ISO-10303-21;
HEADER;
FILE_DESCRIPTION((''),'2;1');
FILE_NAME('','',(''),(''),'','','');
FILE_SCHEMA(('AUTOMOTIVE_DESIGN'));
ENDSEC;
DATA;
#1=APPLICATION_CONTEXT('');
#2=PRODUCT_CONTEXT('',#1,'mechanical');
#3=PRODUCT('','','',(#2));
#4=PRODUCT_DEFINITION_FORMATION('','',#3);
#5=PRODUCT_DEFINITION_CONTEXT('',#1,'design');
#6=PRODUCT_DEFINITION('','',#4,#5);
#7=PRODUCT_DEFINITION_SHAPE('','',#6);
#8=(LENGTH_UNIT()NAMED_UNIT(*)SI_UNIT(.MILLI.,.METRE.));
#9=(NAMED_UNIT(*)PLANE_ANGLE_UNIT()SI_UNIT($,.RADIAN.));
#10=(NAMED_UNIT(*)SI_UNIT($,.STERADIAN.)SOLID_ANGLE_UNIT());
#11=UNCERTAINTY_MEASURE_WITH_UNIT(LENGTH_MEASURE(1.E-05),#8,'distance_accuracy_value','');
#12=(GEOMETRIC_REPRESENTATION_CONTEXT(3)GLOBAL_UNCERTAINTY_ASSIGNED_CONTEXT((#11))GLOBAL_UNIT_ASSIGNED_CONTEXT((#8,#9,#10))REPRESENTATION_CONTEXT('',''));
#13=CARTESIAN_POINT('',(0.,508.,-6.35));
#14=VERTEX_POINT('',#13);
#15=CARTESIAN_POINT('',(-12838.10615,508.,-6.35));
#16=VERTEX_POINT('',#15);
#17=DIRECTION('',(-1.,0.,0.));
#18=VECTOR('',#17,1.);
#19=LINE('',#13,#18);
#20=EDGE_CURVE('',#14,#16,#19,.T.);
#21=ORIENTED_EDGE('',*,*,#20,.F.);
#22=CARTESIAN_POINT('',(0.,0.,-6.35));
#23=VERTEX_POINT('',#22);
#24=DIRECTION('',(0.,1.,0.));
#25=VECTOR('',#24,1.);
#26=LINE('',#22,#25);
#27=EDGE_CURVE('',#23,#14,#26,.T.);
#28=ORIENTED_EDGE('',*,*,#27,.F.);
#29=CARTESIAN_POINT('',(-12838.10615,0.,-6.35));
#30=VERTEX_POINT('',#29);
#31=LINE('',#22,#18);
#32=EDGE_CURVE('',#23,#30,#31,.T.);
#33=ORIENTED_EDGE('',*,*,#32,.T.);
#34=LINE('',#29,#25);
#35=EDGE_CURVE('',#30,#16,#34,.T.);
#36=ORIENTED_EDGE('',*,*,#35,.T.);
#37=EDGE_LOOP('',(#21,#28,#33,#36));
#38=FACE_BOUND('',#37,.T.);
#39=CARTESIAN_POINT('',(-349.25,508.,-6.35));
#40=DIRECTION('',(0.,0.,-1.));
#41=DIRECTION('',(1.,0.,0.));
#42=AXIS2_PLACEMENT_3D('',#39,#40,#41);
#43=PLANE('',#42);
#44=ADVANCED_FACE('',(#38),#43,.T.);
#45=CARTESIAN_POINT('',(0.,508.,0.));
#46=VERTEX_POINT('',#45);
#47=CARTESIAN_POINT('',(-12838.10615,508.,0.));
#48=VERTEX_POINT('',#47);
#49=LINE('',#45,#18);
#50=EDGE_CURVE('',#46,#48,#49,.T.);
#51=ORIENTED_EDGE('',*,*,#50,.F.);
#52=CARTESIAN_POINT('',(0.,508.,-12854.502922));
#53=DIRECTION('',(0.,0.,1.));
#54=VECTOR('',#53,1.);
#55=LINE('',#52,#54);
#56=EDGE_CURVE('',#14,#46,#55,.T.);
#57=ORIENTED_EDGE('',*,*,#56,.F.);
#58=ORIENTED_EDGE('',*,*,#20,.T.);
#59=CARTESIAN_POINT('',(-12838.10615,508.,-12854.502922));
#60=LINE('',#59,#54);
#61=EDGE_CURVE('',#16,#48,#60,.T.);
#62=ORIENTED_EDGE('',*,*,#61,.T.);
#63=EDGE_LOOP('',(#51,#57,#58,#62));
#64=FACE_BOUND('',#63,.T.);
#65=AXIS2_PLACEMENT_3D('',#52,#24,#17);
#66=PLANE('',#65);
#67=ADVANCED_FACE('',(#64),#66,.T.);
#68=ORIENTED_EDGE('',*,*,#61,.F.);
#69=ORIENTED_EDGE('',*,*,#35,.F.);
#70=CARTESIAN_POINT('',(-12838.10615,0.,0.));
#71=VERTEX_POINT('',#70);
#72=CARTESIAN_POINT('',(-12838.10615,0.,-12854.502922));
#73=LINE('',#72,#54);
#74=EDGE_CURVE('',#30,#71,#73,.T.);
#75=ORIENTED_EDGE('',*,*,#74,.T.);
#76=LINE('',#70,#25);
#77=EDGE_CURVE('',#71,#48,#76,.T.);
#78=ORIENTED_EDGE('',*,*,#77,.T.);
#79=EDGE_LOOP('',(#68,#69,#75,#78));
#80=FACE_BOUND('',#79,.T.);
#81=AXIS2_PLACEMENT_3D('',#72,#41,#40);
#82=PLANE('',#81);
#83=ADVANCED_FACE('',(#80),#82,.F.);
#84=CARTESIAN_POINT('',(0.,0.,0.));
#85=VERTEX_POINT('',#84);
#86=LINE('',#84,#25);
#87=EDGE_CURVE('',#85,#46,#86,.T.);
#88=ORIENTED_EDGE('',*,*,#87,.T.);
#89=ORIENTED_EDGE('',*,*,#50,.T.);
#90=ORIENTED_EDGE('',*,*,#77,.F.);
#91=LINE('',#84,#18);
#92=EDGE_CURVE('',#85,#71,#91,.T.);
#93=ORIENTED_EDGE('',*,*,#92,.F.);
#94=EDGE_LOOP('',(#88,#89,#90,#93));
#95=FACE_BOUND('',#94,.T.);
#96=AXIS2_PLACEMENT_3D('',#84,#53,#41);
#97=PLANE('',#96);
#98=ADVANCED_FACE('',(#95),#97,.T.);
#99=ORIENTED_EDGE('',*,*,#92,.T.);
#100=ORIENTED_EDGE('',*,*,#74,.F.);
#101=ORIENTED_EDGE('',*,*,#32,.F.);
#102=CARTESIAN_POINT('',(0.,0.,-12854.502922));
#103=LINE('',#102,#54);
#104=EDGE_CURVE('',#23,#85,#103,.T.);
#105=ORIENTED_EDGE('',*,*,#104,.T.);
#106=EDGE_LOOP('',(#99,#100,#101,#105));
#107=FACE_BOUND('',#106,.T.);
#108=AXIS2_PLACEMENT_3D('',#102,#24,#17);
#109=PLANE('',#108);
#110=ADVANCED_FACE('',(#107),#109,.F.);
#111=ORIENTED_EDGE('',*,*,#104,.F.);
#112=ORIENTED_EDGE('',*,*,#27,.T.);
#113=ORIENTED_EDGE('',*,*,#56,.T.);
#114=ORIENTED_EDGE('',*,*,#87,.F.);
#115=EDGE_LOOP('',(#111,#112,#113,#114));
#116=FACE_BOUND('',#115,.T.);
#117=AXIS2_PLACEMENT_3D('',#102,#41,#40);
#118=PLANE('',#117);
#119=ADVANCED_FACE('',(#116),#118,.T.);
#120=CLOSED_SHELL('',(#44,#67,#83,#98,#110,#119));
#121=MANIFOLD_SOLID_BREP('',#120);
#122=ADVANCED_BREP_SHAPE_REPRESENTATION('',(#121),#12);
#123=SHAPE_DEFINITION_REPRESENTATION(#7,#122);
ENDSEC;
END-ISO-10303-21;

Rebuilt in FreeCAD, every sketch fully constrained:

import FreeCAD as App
import Part
import Sketcher
Q = App.Units.Quantity


def add_polygon(sketch, points):
    """Adds a closed chain of lines whose ends are joined by coincident constraints."""
    first, n = sketch.GeometryCount, len(points)
    for a, b in zip(points, points[1:] + points[:1]):
        sketch.addGeometry(Part.LineSegment(App.Vector(*a, 0), App.Vector(*b, 0)), False)
    for i in range(n):
        sketch.addConstraint(Sketcher.Constraint("Coincident", first + i, 2, first + (i + 1) % n, 1))

doc = App.newDocument("Part")
body = doc.addObject("PartDesign::Body", "Body")

# Sketch on XY plane
sketch1 = body.newObject("Sketcher::SketchObject", "Sketch")
sketch1.AttachmentSupport = (doc.getObject("XY_Plane"), [""])
sketch1.MapMode = "FlatFace"
add_polygon(sketch1, [(0, 0), (0, 508), (-12838, 508), (-12838, 0)])  # lines 0-3
sketch1.addConstraint(Sketcher.Constraint("Vertical", 0))
sketch1.addConstraint(Sketcher.Constraint("Horizontal", 1))
sketch1.addConstraint(Sketcher.Constraint("Vertical", 2))
sketch1.addConstraint(Sketcher.Constraint("Horizontal", 3))
sketch1.addConstraint(Sketcher.Constraint("Coincident", 3, 2, -1, 1))
sketch1.addConstraint(Sketcher.Constraint("DistanceY", 0, 1, 0, 2, Q("20 in")))
sketch1.addConstraint(Sketcher.Constraint("DistanceX", 1, 2, 1, 1, 12838.10615))
pad1 = body.newObject("PartDesign::Pad", "Pad")
pad1.Profile = sketch1
pad1.Length = Q("0.25 in")
pad1.Reversed = True

doc.recompute()
